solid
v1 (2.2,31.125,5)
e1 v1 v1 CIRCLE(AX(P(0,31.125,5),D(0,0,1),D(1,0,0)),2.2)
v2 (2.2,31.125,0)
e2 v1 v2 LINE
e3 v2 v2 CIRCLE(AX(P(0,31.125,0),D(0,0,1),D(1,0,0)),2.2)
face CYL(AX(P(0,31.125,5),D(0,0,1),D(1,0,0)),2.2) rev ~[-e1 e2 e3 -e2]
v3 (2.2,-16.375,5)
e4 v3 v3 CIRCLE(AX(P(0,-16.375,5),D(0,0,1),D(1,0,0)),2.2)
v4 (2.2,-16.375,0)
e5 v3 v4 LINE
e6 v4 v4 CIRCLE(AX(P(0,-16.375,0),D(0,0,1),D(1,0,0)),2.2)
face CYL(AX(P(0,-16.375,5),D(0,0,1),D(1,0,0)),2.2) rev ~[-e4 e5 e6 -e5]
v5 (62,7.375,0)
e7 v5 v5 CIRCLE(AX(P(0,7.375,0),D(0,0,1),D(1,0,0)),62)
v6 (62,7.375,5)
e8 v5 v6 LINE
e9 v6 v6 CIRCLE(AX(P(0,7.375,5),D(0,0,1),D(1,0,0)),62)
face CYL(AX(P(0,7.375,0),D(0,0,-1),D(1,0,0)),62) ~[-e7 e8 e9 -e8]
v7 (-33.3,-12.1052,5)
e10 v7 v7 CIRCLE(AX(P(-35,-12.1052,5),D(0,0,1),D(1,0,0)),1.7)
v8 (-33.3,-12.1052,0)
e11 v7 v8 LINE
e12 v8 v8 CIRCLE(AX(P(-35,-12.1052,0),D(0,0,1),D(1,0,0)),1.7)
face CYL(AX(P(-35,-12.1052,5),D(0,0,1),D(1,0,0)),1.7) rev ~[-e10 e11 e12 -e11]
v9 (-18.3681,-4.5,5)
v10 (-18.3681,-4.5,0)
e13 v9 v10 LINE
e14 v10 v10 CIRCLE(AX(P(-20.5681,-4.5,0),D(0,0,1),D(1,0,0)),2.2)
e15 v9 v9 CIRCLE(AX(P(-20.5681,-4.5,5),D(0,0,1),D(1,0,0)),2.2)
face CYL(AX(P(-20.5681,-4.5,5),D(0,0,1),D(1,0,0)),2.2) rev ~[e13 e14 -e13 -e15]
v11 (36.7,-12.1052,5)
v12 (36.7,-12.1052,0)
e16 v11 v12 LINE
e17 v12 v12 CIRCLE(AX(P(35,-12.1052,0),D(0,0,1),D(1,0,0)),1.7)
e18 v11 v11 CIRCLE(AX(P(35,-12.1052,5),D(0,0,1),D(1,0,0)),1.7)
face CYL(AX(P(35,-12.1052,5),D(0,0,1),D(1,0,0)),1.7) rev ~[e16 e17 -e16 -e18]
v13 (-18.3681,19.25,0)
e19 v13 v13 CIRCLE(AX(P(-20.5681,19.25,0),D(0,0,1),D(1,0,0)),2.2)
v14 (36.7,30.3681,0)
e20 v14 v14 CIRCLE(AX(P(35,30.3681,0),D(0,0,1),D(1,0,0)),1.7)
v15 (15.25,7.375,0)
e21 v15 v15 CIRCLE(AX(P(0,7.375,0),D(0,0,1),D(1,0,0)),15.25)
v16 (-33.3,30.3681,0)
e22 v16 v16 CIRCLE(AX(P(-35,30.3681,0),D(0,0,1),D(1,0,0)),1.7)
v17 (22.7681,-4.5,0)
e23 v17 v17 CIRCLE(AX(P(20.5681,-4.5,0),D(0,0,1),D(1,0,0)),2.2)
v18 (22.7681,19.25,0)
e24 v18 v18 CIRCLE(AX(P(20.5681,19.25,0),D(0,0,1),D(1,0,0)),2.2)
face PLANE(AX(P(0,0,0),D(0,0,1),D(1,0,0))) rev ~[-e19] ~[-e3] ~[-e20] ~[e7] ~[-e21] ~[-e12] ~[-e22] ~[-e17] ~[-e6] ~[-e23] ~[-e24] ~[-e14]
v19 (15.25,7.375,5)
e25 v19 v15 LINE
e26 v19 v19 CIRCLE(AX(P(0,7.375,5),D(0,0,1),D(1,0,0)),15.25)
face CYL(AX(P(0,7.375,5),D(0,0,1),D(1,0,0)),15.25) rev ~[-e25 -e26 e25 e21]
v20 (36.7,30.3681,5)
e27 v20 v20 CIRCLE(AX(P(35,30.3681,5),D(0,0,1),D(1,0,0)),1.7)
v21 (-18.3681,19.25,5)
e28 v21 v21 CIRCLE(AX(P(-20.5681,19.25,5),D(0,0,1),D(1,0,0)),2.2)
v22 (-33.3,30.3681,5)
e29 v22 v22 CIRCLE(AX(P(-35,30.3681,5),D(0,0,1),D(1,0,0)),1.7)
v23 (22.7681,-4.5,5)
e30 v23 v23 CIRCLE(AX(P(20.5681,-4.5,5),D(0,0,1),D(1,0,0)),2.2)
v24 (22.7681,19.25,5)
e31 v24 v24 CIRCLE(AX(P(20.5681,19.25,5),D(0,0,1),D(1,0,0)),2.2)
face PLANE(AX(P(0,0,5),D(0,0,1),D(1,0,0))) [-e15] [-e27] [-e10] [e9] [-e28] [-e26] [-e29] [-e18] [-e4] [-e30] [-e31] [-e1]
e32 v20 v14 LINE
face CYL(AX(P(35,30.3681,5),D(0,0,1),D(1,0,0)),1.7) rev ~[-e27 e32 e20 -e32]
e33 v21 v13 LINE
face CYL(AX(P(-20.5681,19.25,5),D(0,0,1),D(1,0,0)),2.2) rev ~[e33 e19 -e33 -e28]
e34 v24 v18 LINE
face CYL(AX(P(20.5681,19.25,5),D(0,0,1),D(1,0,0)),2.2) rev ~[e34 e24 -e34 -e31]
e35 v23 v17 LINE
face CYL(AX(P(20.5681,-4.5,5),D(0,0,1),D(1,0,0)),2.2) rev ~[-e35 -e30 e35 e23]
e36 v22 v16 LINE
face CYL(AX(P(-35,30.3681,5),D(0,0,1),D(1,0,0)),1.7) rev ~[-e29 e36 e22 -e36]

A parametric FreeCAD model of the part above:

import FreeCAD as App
import Part
import Sketcher

V = App.Vector
Q = App.Units.Quantity

doc = App.newDocument("Part")
body = doc.addObject("PartDesign::Body", "Body")

sketch1 = doc.addObject("Sketcher::SketchObject", "Sketch")
body.addObject(sketch1)
sketch1.AttachmentSupport = (doc.XY_Plane, [""])
sketch1.MapMode = "FlatFace"
sketch1.addGeometry(Part.Circle(V(0, 7.375, 0), V(0, 0, 1), 62), False)
sketch1.addConstraint([
    Sketcher.Constraint("PointOnObject", 0, 3, -2),
    Sketcher.Constraint("Diameter", 0, Q("124 mm")),
    Sketcher.Constraint("DistanceY", -1, 1, 0, 3, Q("7.375 mm")),
])
pad1 = doc.addObject("PartDesign::Pad", "Pad")
body.addObject(pad1)
pad1.Profile = sketch1
pad1.Length = 5

sketch2 = doc.addObject("Sketcher::SketchObject", "Sketch001")
body.addObject(sketch2)
sketch2.AttachmentSupport = (doc.XY_Plane, [""])
sketch2.MapMode = "FlatFace"
sketch2.AttachmentOffset = App.Placement(V(0, 0, 5), App.Rotation())
sketch2.addGeometry(Part.Circle(V(0, 7.375, 0), V(0, 0, 1), 15.25), False)
sketch2.addConstraint([
    Sketcher.Constraint("PointOnObject", 0, 3, -2),
    Sketcher.Constraint("Diameter", 0, Q("30.5 mm")),
    Sketcher.Constraint("DistanceY", -1, 1, 0, 3, Q("7.375 mm")),
])
pocket1 = doc.addObject("PartDesign::Pocket", "Pocket")
body.addObject(pocket1)
pocket1.Profile = sketch2
pocket1.Length = 5

sketch3 = doc.addObject("Sketcher::SketchObject", "Sketch002")
body.addObject(sketch3)
sketch3.AttachmentSupport = (doc.XY_Plane, [""])
sketch3.MapMode = "FlatFace"
sketch3.AttachmentOffset = App.Placement(V(0, 0, 5), App.Rotation())
sketch3.addGeometry([
    Part.Circle(V(0, -16.375, 0), V(0, 0, 1), 2.2),
    Part.Circle(V(20.5681, -4.5, 0), V(0, 0, 1), 2.2),
    Part.Circle(V(20.5681, 19.25, 0), V(0, 0, 1), 2.2),
    Part.Circle(V(0, 31.125, 0), V(0, 0, 1), 2.2),
    Part.Circle(V(-20.5681, -4.5, 0), V(0, 0, 1), 2.2),
    Part.Circle(V(-20.5681, 19.25, 0), V(0, 0, 1), 2.2),
], False)
sketch3.addConstraint([
    Sketcher.Constraint("Equal", 0, 1),
    Sketcher.Constraint("Equal", 1, 2),
    Sketcher.Constraint("Equal", 2, 3),
    Sketcher.Constraint("Equal", 3, 4),
    Sketcher.Constraint("Equal", 4, 5),
    Sketcher.Constraint("Symmetric", 1, 3, 4, 3, -2),
    Sketcher.Constraint("Symmetric", 2, 3, 5, 3, -2),
    Sketcher.Constraint("PointOnObject", 0, 3, -2),
    Sketcher.Constraint("PointOnObject", 3, 3, -2),
    Sketcher.Constraint("Vertical", 1, 3, 2, 3),
    Sketcher.Constraint("Diameter", 0, Q("4.4 mm")),
    Sketcher.Constraint("DistanceY", 1, 3, -1, 1, Q("4.5 mm")),
    Sketcher.Constraint("DistanceY", 0, 3, 3, 3, Q("47.5 mm")),
    Sketcher.Constraint("DistanceY", -1, 1, 2, 3, Q("19.25 mm")),
    Sketcher.Constraint("DistanceY", 0, 3, -1, 1, Q("16.375 mm")),
    Sketcher.Constraint("DistanceX", -1, 1, 1, 3, Q("20.568 mm")),
])
pocket2 = doc.addObject("PartDesign::Pocket", "Pocket001")
body.addObject(pocket2)
pocket2.Profile = sketch3
pocket2.Length = 5

sketch4 = doc.addObject("Sketcher::SketchObject", "Sketch003")
body.addObject(sketch4)
sketch4.AttachmentSupport = (doc.XY_Plane, [""])
sketch4.MapMode = "FlatFace"
sketch4.AttachmentOffset = App.Placement(V(0, 0, 5), App.Rotation())
sketch4.addGeometry([
    Part.Circle(V(-35, -12.1052, 0), V(0, 0, 1), 1.7),
    Part.Circle(V(-35, 30.3681, 0), V(0, 0, 1), 1.7),
    Part.Circle(V(35, -12.1052, 0), V(0, 0, 1), 1.7),
    Part.Circle(V(35, 30.3681, 0), V(0, 0, 1), 1.7),
], False)
sketch4.addConstraint([
    Sketcher.Constraint("Equal", 0, 1),
    Sketcher.Constraint("Equal", 1, 2),
    Sketcher.Constraint("Equal", 2, 3),
    Sketcher.Constraint("Symmetric", 0, 3, 2, 3, -2),
    Sketcher.Constraint("Symmetric", 1, 3, 3, 3, -2),
    Sketcher.Constraint("Vertical", 0, 3, 1, 3),
    Sketcher.Constraint("Diameter", 0, Q("3.4 mm")),
    Sketcher.Constraint("DistanceX", 0, 3, -1, 1, Q("35 mm")),
    Sketcher.Constraint("DistanceY", -1, 1, 1, 3, Q("30.368 mm")),
    Sketcher.Constraint("DistanceY", 0, 3, -1, 1, Q("12.1052 mm")),
])
pocket3 = doc.addObject("PartDesign::Pocket", "Pocket002")
body.addObject(pocket3)
pocket3.Profile = sketch4
pocket3.Length = 5

doc.recompute()
